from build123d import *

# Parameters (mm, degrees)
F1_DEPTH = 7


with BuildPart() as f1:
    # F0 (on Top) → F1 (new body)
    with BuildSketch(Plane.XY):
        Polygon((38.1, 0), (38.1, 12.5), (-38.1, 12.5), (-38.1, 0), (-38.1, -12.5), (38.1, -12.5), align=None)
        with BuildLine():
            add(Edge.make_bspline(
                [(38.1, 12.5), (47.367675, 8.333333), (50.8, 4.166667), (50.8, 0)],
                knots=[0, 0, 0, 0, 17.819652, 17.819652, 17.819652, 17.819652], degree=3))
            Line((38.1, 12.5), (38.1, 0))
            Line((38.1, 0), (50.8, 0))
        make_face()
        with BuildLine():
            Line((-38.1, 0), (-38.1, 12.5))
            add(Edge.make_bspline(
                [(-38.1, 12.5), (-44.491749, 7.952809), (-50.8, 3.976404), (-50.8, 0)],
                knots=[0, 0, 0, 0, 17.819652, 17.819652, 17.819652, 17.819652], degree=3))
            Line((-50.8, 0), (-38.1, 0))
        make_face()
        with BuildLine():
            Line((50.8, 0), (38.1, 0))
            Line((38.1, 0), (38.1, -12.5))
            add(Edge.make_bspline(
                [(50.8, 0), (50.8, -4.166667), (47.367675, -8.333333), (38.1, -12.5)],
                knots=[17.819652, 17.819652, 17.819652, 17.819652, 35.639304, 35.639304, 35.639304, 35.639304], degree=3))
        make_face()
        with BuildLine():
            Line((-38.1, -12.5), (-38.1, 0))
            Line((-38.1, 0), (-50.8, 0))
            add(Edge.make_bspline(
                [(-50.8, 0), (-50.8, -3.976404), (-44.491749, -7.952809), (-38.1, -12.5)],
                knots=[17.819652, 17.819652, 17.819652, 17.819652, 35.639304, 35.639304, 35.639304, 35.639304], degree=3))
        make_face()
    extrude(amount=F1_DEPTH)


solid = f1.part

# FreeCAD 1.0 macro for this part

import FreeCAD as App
import Part
import Sketcher

V = App.Vector

doc = App.newDocument("Part")
body = doc.addObject("PartDesign::Body", "Body")

sketch1 = doc.addObject("Sketcher::SketchObject", "Sketch")
body.addObject(sketch1)
sketch1.AttachmentSupport = (doc.XY_Plane, [""])
sketch1.MapMode = "FlatFace"
sketch1.addGeometry([
    Part.LineSegment(V(38.1, 12.5, 0), V(-38.1, 12.5, 0)),
    Part.BSplineCurve([V(-38.1, 12.5, 0), V(-44.491749, 7.952809, 0), V(-50.8, 3.976404, 0), V(-50.8, -3.976404, 0), V(-44.491749, -7.952809, 0), V(-38.1, -12.5, 0)], [4, 2, 4], [0, 17.819652, 35.639304], False, 3, [1, 1, 1, 1, 1, 1], False),
    Part.LineSegment(V(-38.1, -12.5, 0), V(38.1, -12.5, 0)),
    Part.BSplineCurve([V(38.1, -12.5, 0), V(47.367675, -8.333333, 0), V(50.8, -4.166667, 0), V(50.8, 4.166667, 0), V(47.367675, 8.333333, 0), V(38.1, 12.5, 0)], [4, 2, 4], [17.819652, 35.639304, 53.458956], False, 3, [1, 1, 1, 1, 1, 1], False),
], False)
sketch1.addConstraint([
    Sketcher.Constraint("Block", 1),
    Sketcher.Constraint("Block", 3),
    Sketcher.Constraint("Coincident", 0, 2, 1, 1),
    Sketcher.Constraint("Coincident", 1, 2, 2, 1),
    Sketcher.Constraint("Coincident", 2, 2, 3, 1),
    Sketcher.Constraint("Coincident", 3, 2, 0, 1),
])
pad1 = doc.addObject("PartDesign::Pad", "Pad")
body.addObject(pad1)
pad1.Profile = sketch1
pad1.Length = 7

doc.recompute()
